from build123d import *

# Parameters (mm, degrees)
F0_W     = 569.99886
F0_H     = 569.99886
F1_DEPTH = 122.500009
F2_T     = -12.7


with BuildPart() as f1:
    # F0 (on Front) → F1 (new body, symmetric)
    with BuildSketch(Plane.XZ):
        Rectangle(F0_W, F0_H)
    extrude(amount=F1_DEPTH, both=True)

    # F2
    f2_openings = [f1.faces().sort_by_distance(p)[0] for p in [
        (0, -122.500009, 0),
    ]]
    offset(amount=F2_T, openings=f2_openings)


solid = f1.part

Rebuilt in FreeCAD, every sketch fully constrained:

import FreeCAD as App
import Part
import Sketcher
from FreeCAD import Vector
Q = App.Units.Quantity


def faces_at(feature, points):
    """Names of the faces that lie closest to the given points."""
    faces = feature.Shape.Faces
    near = lambda p: min(range(len(faces)), key=lambda i: faces[i].distToShape(Part.Vertex(*p))[0])
    return sorted({f"Face{near(p) + 1}" for p in points})

doc = App.newDocument("Part")
body = doc.addObject("PartDesign::Body", "Body")

# Sketch on XZ plane
sketch1 = body.newObject("Sketcher::SketchObject", "Sketch")
sketch1.AttachmentSupport = (doc.getObject("XZ_Plane"), [""])
sketch1.MapMode = "FlatFace"
sketch1.addGeometry([
    Part.LineSegment(Vector(-285, 285, 0), Vector(-285, -285, 0)),
    Part.LineSegment(Vector(-285, -285, 0), Vector(285, -285, 0)),
    Part.LineSegment(Vector(285, -285, 0), Vector(285, 285, 0)),
    Part.LineSegment(Vector(285, 285, 0), Vector(-285, 285, 0)),
], False)
sketch1.addConstraint([
    Sketcher.Constraint("Coincident", 0, 2, 1, 1),
    Sketcher.Constraint("Coincident", 1, 2, 2, 1),
    Sketcher.Constraint("Coincident", 2, 2, 3, 1),
    Sketcher.Constraint("Coincident", 3, 2, 0, 1),
    Sketcher.Constraint("Vertical", 0),
    Sketcher.Constraint("Horizontal", 1),
    Sketcher.Constraint("Vertical", 2),
    Sketcher.Constraint("Horizontal", 3),
    Sketcher.Constraint("Symmetric", 0, 2, 2, 2, -1, 1),
    Sketcher.Constraint("Equal", 3, 0),
    Sketcher.Constraint("DistanceX", 1, 1, 1, 2, Q("22.4409 in")),
])
pad1 = body.newObject("PartDesign::Pad", "Pad")
pad1.Profile = sketch1
pad1.Length = 245.000018
pad1.Midplane = True
doc.recompute()

thickness = body.newObject("PartDesign::Thickness", "Thickness")
thickness.Base = (pad1, faces_at(pad1, [(0, -122.5, 0)]))
thickness.Value = Q("0.5 in")
thickness.Reversed = True
thickness.Join = "Arc"

doc.recompute()
